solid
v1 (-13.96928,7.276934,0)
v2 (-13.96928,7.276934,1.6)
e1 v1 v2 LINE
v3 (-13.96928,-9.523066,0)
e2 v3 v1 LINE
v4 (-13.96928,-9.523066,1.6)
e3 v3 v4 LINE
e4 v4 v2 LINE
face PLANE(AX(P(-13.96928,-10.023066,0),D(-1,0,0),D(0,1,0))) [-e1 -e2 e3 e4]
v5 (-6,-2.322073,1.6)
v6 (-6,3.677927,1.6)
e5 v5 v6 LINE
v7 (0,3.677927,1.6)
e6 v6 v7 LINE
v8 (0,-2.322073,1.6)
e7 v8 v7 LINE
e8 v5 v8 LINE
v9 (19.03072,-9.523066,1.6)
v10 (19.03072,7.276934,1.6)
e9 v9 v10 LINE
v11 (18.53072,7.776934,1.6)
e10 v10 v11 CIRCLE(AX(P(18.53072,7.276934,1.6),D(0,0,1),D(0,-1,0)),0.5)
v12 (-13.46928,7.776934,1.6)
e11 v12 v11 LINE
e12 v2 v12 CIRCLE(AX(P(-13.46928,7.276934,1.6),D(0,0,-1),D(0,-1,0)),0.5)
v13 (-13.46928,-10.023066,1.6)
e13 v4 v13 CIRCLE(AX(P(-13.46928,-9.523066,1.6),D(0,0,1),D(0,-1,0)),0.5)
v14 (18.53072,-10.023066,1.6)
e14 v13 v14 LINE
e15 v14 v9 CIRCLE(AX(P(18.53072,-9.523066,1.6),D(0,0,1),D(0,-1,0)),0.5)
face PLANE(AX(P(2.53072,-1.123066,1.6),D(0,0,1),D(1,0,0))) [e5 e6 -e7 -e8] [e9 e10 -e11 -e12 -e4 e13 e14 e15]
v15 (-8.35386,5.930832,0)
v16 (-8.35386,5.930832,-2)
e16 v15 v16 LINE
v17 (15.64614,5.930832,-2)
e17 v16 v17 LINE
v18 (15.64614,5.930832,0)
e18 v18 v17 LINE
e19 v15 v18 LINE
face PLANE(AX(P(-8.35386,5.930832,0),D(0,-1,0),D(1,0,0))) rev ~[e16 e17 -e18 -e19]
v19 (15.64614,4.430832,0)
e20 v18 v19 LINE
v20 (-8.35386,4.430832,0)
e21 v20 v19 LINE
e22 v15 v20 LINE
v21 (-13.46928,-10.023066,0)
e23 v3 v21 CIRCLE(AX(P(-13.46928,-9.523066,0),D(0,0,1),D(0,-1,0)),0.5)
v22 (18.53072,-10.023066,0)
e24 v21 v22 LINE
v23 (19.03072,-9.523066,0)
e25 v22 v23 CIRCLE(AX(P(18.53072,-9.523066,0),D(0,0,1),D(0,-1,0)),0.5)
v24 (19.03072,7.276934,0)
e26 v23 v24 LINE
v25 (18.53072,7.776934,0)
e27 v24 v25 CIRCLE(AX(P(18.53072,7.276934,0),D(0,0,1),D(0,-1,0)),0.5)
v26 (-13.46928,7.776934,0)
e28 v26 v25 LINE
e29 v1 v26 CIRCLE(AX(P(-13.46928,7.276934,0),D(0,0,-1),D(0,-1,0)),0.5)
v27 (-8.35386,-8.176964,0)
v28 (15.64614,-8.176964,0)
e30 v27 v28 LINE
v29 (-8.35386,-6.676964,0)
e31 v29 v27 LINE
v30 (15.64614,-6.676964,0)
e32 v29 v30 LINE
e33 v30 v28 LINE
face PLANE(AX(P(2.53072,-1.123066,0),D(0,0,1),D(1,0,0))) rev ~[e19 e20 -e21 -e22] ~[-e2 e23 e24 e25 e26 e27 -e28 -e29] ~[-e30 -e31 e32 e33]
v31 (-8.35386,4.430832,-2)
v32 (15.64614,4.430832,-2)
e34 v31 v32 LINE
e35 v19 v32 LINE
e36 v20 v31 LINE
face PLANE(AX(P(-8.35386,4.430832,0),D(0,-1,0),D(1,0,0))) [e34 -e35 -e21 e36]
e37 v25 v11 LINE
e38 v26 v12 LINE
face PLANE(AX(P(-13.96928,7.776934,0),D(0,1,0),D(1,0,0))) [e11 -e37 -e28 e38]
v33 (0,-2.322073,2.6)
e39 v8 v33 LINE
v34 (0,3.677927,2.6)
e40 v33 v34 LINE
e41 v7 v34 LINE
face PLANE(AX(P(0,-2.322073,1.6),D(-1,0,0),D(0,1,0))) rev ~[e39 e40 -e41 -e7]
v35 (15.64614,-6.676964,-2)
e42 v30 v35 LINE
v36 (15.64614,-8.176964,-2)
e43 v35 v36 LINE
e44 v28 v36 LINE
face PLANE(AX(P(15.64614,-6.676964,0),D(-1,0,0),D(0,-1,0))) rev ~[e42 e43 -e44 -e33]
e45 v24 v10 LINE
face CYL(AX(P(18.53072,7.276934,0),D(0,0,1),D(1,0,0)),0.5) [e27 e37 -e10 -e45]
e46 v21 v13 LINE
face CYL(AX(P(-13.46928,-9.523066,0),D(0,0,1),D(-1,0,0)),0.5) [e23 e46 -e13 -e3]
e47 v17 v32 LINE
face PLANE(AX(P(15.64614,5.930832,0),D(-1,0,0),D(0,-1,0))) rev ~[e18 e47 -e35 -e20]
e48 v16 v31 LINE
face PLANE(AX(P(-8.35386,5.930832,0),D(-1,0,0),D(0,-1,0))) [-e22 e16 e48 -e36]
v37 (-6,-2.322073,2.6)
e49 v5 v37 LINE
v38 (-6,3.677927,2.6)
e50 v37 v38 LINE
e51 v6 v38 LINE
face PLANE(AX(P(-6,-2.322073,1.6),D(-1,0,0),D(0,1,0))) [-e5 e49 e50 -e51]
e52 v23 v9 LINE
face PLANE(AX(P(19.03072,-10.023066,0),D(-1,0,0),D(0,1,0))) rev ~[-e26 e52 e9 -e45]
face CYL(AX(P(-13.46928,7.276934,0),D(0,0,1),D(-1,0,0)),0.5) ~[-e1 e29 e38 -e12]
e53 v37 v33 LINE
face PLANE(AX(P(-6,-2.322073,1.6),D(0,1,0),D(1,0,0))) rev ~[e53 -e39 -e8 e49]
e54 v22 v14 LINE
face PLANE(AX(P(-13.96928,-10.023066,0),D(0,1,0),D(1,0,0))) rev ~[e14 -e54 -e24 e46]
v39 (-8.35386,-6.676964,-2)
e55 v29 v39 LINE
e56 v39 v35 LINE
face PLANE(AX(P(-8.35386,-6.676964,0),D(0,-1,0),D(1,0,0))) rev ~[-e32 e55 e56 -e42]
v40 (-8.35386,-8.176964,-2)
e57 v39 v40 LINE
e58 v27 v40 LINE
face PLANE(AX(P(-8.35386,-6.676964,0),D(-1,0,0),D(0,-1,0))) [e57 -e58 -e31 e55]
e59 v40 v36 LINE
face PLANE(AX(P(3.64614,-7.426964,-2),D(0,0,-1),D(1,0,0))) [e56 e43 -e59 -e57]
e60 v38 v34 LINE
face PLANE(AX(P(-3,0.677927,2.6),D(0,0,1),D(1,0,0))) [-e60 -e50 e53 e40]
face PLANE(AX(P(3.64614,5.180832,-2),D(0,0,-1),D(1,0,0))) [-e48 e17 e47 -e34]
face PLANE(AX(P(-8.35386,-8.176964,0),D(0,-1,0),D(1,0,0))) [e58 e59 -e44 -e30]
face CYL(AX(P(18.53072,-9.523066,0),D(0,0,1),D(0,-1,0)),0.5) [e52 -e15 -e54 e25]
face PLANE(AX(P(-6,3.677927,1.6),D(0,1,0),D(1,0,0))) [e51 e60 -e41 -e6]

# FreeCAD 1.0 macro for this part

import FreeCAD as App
import Part
import Sketcher
from FreeCAD import Vector


def edges_at(feature, points):
    """Names of the edges that pass closest to the given points."""
    edges = feature.Shape.Edges
    near = lambda p: min(range(len(edges)), key=lambda i: edges[i].distToShape(Part.Vertex(*p))[0])
    return sorted({f"Edge{near(p) + 1}" for p in points})

doc = App.newDocument("Part")
body = doc.addObject("PartDesign::Body", "Body")

# Sketch on XY plane
sketch1 = body.newObject("Sketcher::SketchObject", "Sketch")
sketch1.AttachmentSupport = (doc.getObject("XY_Plane"), [""])
sketch1.MapMode = "FlatFace"
sketch1.addGeometry([
    Part.LineSegment(Vector(-14, 8, 0), Vector(-14, -10, 0)),
    Part.LineSegment(Vector(-14, -10, 0), Vector(19, -10, 0)),
    Part.LineSegment(Vector(19, -10, 0), Vector(19, 8, 0)),
    Part.LineSegment(Vector(19, 8, 0), Vector(-14, 8, 0)),
], False)
sketch1.addConstraint([
    Sketcher.Constraint("Coincident", 0, 2, 1, 1),
    Sketcher.Constraint("Coincident", 1, 2, 2, 1),
    Sketcher.Constraint("Coincident", 2, 2, 3, 1),
    Sketcher.Constraint("Coincident", 3, 2, 0, 1),
    Sketcher.Constraint("Vertical", 0),
    Sketcher.Constraint("Horizontal", 1),
    Sketcher.Constraint("Vertical", 2),
    Sketcher.Constraint("Horizontal", 3),
    Sketcher.Constraint("DistanceX", 1, 1, 1, 2, 33.0),
    Sketcher.Constraint("DistanceY", 0, 2, 0, 1, 17.8),
    Sketcher.Constraint("DistanceX", 0, 2, -1, 1, 13.96928),
    Sketcher.Constraint("DistanceY", 0, 2, -1, 1, 10.023066),
])
pad1 = body.newObject("PartDesign::Pad", "Pad")
pad1.Profile = sketch1
pad1.Length = 1.6
doc.recompute()

fillet = body.newObject("PartDesign::Fillet", "Fillet")
fillet.Base = (pad1, edges_at(pad1, [
    (19.031, -10.023, 0.8),
    (-13.969, -10.023, 0.8),
    (19.031, 7.777, 0.8),
    (-13.969, 7.777, 0.8),
]))
fillet.Radius = 0.5

# Sketch on XY plane
sketch2 = body.newObject("Sketcher::SketchObject", "Sketch001")
sketch2.AttachmentSupport = (doc.getObject("XY_Plane"), [""])
sketch2.MapMode = "FlatFace"
sketch2.AttachmentOffset = App.Placement(Vector(0, 0, 1.6), App.Rotation())
sketch2.addGeometry([
    Part.LineSegment(Vector(-6, 4, 0), Vector(-6, -2, 0)),
    Part.LineSegment(Vector(-6, -2, 0), Vector(0, -2, 0)),
    Part.LineSegment(Vector(0, -2, 0), Vector(0, 4, 0)),
    Part.LineSegment(Vector(0, 4, 0), Vector(-6, 4, 0)),
], False)
sketch2.addConstraint([
    Sketcher.Constraint("Coincident", 0, 2, 1, 1),
    Sketcher.Constraint("Coincident", 1, 2, 2, 1),
    Sketcher.Constraint("Coincident", 2, 2, 3, 1),
    Sketcher.Constraint("Coincident", 3, 2, 0, 1),
    Sketcher.Constraint("Vertical", 0),
    Sketcher.Constraint("Horizontal", 1),
    Sketcher.Constraint("Vertical", 2),
    Sketcher.Constraint("Horizontal", 3),
    Sketcher.Constraint("PointOnObject", 1, 2, -2),
    Sketcher.Constraint("Equal", 3, 0),
    Sketcher.Constraint("DistanceX", 1, 1, 1, 2, 6.0),
    Sketcher.Constraint("DistanceY", 0, 2, -1, 1, 2.322073),
])
pad2 = body.newObject("PartDesign::Pad", "Pad001")
pad2.Profile = sketch2
pad2.Length = 1

# Sketch on XY plane
sketch3 = body.newObject("Sketcher::SketchObject", "Sketch002")
sketch3.AttachmentSupport = (doc.getObject("XY_Plane"), [""])
sketch3.MapMode = "FlatFace"
sketch3.addGeometry([
    Part.LineSegment(Vector(-8.4, -8.2, 0), Vector(-8.4, -6.7, 0)),  # 0
    Part.LineSegment(Vector(-8.4, -6.7, 0), Vector(15.6, -6.7, 0)),  # 1
    Part.LineSegment(Vector(15.6, -6.7, 0), Vector(15.6, -8.2, 0)),  # 2
    Part.LineSegment(Vector(15.6, -8.2, 0), Vector(-8.4, -8.2, 0)),  # 3
    Part.LineSegment(Vector(-8.4, 4.4, 0), Vector(-8.4, 5.9, 0)),  # 4
    Part.LineSegment(Vector(-8.4, 5.9, 0), Vector(15.6, 5.9, 0)),  # 5
    Part.LineSegment(Vector(15.6, 5.9, 0), Vector(15.6, 4.4, 0)),  # 6
    Part.LineSegment(Vector(15.6, 4.4, 0), Vector(-8.4, 4.4, 0)),  # 7
], False)
sketch3.addConstraint([
    Sketcher.Constraint("Coincident", 0, 2, 1, 1),
    Sketcher.Constraint("Coincident", 1, 2, 2, 1),
    Sketcher.Constraint("Coincident", 2, 2, 3, 1),
    Sketcher.Constraint("Coincident", 3, 2, 0, 1),
    Sketcher.Constraint("Coincident", 4, 2, 5, 1),
    Sketcher.Constraint("Coincident", 5, 2, 6, 1),
    Sketcher.Constraint("Coincident", 6, 2, 7, 1),
    Sketcher.Constraint("Coincident", 7, 2, 4, 1),
    Sketcher.Constraint("Vertical", 0),
    Sketcher.Constraint("Horizontal", 1),
    Sketcher.Constraint("Vertical", 2),
    Sketcher.Constraint("Horizontal", 3),
    Sketcher.Constraint("Vertical", 4),
    Sketcher.Constraint("Horizontal", 5),
    Sketcher.Constraint("Vertical", 6),
    Sketcher.Constraint("Horizontal", 7),
    Sketcher.Constraint("Vertical", 3, 2, 4, 2),
    Sketcher.Constraint("Vertical", 2, 2, 5, 2),
    Sketcher.Constraint("Equal", 2, 4),
    Sketcher.Constraint("DistanceX", 1, 1, 1, 2, 24.0),
    Sketcher.Constraint("DistanceY", 0, 1, 0, 2, 1.5),
    Sketcher.Constraint("DistanceX", 0, 2, -1, 1, 8.35386),
    Sketcher.Constraint("DistanceY", -1, 1, 4, 2, 5.930832),
    Sketcher.Constraint("DistanceY", 0, 2, -1, 1, 6.676964),
])
pad3 = body.newObject("PartDesign::Pad", "Pad002")
pad3.Profile = sketch3
pad3.Length = 2
pad3.Reversed = True

doc.recompute()
